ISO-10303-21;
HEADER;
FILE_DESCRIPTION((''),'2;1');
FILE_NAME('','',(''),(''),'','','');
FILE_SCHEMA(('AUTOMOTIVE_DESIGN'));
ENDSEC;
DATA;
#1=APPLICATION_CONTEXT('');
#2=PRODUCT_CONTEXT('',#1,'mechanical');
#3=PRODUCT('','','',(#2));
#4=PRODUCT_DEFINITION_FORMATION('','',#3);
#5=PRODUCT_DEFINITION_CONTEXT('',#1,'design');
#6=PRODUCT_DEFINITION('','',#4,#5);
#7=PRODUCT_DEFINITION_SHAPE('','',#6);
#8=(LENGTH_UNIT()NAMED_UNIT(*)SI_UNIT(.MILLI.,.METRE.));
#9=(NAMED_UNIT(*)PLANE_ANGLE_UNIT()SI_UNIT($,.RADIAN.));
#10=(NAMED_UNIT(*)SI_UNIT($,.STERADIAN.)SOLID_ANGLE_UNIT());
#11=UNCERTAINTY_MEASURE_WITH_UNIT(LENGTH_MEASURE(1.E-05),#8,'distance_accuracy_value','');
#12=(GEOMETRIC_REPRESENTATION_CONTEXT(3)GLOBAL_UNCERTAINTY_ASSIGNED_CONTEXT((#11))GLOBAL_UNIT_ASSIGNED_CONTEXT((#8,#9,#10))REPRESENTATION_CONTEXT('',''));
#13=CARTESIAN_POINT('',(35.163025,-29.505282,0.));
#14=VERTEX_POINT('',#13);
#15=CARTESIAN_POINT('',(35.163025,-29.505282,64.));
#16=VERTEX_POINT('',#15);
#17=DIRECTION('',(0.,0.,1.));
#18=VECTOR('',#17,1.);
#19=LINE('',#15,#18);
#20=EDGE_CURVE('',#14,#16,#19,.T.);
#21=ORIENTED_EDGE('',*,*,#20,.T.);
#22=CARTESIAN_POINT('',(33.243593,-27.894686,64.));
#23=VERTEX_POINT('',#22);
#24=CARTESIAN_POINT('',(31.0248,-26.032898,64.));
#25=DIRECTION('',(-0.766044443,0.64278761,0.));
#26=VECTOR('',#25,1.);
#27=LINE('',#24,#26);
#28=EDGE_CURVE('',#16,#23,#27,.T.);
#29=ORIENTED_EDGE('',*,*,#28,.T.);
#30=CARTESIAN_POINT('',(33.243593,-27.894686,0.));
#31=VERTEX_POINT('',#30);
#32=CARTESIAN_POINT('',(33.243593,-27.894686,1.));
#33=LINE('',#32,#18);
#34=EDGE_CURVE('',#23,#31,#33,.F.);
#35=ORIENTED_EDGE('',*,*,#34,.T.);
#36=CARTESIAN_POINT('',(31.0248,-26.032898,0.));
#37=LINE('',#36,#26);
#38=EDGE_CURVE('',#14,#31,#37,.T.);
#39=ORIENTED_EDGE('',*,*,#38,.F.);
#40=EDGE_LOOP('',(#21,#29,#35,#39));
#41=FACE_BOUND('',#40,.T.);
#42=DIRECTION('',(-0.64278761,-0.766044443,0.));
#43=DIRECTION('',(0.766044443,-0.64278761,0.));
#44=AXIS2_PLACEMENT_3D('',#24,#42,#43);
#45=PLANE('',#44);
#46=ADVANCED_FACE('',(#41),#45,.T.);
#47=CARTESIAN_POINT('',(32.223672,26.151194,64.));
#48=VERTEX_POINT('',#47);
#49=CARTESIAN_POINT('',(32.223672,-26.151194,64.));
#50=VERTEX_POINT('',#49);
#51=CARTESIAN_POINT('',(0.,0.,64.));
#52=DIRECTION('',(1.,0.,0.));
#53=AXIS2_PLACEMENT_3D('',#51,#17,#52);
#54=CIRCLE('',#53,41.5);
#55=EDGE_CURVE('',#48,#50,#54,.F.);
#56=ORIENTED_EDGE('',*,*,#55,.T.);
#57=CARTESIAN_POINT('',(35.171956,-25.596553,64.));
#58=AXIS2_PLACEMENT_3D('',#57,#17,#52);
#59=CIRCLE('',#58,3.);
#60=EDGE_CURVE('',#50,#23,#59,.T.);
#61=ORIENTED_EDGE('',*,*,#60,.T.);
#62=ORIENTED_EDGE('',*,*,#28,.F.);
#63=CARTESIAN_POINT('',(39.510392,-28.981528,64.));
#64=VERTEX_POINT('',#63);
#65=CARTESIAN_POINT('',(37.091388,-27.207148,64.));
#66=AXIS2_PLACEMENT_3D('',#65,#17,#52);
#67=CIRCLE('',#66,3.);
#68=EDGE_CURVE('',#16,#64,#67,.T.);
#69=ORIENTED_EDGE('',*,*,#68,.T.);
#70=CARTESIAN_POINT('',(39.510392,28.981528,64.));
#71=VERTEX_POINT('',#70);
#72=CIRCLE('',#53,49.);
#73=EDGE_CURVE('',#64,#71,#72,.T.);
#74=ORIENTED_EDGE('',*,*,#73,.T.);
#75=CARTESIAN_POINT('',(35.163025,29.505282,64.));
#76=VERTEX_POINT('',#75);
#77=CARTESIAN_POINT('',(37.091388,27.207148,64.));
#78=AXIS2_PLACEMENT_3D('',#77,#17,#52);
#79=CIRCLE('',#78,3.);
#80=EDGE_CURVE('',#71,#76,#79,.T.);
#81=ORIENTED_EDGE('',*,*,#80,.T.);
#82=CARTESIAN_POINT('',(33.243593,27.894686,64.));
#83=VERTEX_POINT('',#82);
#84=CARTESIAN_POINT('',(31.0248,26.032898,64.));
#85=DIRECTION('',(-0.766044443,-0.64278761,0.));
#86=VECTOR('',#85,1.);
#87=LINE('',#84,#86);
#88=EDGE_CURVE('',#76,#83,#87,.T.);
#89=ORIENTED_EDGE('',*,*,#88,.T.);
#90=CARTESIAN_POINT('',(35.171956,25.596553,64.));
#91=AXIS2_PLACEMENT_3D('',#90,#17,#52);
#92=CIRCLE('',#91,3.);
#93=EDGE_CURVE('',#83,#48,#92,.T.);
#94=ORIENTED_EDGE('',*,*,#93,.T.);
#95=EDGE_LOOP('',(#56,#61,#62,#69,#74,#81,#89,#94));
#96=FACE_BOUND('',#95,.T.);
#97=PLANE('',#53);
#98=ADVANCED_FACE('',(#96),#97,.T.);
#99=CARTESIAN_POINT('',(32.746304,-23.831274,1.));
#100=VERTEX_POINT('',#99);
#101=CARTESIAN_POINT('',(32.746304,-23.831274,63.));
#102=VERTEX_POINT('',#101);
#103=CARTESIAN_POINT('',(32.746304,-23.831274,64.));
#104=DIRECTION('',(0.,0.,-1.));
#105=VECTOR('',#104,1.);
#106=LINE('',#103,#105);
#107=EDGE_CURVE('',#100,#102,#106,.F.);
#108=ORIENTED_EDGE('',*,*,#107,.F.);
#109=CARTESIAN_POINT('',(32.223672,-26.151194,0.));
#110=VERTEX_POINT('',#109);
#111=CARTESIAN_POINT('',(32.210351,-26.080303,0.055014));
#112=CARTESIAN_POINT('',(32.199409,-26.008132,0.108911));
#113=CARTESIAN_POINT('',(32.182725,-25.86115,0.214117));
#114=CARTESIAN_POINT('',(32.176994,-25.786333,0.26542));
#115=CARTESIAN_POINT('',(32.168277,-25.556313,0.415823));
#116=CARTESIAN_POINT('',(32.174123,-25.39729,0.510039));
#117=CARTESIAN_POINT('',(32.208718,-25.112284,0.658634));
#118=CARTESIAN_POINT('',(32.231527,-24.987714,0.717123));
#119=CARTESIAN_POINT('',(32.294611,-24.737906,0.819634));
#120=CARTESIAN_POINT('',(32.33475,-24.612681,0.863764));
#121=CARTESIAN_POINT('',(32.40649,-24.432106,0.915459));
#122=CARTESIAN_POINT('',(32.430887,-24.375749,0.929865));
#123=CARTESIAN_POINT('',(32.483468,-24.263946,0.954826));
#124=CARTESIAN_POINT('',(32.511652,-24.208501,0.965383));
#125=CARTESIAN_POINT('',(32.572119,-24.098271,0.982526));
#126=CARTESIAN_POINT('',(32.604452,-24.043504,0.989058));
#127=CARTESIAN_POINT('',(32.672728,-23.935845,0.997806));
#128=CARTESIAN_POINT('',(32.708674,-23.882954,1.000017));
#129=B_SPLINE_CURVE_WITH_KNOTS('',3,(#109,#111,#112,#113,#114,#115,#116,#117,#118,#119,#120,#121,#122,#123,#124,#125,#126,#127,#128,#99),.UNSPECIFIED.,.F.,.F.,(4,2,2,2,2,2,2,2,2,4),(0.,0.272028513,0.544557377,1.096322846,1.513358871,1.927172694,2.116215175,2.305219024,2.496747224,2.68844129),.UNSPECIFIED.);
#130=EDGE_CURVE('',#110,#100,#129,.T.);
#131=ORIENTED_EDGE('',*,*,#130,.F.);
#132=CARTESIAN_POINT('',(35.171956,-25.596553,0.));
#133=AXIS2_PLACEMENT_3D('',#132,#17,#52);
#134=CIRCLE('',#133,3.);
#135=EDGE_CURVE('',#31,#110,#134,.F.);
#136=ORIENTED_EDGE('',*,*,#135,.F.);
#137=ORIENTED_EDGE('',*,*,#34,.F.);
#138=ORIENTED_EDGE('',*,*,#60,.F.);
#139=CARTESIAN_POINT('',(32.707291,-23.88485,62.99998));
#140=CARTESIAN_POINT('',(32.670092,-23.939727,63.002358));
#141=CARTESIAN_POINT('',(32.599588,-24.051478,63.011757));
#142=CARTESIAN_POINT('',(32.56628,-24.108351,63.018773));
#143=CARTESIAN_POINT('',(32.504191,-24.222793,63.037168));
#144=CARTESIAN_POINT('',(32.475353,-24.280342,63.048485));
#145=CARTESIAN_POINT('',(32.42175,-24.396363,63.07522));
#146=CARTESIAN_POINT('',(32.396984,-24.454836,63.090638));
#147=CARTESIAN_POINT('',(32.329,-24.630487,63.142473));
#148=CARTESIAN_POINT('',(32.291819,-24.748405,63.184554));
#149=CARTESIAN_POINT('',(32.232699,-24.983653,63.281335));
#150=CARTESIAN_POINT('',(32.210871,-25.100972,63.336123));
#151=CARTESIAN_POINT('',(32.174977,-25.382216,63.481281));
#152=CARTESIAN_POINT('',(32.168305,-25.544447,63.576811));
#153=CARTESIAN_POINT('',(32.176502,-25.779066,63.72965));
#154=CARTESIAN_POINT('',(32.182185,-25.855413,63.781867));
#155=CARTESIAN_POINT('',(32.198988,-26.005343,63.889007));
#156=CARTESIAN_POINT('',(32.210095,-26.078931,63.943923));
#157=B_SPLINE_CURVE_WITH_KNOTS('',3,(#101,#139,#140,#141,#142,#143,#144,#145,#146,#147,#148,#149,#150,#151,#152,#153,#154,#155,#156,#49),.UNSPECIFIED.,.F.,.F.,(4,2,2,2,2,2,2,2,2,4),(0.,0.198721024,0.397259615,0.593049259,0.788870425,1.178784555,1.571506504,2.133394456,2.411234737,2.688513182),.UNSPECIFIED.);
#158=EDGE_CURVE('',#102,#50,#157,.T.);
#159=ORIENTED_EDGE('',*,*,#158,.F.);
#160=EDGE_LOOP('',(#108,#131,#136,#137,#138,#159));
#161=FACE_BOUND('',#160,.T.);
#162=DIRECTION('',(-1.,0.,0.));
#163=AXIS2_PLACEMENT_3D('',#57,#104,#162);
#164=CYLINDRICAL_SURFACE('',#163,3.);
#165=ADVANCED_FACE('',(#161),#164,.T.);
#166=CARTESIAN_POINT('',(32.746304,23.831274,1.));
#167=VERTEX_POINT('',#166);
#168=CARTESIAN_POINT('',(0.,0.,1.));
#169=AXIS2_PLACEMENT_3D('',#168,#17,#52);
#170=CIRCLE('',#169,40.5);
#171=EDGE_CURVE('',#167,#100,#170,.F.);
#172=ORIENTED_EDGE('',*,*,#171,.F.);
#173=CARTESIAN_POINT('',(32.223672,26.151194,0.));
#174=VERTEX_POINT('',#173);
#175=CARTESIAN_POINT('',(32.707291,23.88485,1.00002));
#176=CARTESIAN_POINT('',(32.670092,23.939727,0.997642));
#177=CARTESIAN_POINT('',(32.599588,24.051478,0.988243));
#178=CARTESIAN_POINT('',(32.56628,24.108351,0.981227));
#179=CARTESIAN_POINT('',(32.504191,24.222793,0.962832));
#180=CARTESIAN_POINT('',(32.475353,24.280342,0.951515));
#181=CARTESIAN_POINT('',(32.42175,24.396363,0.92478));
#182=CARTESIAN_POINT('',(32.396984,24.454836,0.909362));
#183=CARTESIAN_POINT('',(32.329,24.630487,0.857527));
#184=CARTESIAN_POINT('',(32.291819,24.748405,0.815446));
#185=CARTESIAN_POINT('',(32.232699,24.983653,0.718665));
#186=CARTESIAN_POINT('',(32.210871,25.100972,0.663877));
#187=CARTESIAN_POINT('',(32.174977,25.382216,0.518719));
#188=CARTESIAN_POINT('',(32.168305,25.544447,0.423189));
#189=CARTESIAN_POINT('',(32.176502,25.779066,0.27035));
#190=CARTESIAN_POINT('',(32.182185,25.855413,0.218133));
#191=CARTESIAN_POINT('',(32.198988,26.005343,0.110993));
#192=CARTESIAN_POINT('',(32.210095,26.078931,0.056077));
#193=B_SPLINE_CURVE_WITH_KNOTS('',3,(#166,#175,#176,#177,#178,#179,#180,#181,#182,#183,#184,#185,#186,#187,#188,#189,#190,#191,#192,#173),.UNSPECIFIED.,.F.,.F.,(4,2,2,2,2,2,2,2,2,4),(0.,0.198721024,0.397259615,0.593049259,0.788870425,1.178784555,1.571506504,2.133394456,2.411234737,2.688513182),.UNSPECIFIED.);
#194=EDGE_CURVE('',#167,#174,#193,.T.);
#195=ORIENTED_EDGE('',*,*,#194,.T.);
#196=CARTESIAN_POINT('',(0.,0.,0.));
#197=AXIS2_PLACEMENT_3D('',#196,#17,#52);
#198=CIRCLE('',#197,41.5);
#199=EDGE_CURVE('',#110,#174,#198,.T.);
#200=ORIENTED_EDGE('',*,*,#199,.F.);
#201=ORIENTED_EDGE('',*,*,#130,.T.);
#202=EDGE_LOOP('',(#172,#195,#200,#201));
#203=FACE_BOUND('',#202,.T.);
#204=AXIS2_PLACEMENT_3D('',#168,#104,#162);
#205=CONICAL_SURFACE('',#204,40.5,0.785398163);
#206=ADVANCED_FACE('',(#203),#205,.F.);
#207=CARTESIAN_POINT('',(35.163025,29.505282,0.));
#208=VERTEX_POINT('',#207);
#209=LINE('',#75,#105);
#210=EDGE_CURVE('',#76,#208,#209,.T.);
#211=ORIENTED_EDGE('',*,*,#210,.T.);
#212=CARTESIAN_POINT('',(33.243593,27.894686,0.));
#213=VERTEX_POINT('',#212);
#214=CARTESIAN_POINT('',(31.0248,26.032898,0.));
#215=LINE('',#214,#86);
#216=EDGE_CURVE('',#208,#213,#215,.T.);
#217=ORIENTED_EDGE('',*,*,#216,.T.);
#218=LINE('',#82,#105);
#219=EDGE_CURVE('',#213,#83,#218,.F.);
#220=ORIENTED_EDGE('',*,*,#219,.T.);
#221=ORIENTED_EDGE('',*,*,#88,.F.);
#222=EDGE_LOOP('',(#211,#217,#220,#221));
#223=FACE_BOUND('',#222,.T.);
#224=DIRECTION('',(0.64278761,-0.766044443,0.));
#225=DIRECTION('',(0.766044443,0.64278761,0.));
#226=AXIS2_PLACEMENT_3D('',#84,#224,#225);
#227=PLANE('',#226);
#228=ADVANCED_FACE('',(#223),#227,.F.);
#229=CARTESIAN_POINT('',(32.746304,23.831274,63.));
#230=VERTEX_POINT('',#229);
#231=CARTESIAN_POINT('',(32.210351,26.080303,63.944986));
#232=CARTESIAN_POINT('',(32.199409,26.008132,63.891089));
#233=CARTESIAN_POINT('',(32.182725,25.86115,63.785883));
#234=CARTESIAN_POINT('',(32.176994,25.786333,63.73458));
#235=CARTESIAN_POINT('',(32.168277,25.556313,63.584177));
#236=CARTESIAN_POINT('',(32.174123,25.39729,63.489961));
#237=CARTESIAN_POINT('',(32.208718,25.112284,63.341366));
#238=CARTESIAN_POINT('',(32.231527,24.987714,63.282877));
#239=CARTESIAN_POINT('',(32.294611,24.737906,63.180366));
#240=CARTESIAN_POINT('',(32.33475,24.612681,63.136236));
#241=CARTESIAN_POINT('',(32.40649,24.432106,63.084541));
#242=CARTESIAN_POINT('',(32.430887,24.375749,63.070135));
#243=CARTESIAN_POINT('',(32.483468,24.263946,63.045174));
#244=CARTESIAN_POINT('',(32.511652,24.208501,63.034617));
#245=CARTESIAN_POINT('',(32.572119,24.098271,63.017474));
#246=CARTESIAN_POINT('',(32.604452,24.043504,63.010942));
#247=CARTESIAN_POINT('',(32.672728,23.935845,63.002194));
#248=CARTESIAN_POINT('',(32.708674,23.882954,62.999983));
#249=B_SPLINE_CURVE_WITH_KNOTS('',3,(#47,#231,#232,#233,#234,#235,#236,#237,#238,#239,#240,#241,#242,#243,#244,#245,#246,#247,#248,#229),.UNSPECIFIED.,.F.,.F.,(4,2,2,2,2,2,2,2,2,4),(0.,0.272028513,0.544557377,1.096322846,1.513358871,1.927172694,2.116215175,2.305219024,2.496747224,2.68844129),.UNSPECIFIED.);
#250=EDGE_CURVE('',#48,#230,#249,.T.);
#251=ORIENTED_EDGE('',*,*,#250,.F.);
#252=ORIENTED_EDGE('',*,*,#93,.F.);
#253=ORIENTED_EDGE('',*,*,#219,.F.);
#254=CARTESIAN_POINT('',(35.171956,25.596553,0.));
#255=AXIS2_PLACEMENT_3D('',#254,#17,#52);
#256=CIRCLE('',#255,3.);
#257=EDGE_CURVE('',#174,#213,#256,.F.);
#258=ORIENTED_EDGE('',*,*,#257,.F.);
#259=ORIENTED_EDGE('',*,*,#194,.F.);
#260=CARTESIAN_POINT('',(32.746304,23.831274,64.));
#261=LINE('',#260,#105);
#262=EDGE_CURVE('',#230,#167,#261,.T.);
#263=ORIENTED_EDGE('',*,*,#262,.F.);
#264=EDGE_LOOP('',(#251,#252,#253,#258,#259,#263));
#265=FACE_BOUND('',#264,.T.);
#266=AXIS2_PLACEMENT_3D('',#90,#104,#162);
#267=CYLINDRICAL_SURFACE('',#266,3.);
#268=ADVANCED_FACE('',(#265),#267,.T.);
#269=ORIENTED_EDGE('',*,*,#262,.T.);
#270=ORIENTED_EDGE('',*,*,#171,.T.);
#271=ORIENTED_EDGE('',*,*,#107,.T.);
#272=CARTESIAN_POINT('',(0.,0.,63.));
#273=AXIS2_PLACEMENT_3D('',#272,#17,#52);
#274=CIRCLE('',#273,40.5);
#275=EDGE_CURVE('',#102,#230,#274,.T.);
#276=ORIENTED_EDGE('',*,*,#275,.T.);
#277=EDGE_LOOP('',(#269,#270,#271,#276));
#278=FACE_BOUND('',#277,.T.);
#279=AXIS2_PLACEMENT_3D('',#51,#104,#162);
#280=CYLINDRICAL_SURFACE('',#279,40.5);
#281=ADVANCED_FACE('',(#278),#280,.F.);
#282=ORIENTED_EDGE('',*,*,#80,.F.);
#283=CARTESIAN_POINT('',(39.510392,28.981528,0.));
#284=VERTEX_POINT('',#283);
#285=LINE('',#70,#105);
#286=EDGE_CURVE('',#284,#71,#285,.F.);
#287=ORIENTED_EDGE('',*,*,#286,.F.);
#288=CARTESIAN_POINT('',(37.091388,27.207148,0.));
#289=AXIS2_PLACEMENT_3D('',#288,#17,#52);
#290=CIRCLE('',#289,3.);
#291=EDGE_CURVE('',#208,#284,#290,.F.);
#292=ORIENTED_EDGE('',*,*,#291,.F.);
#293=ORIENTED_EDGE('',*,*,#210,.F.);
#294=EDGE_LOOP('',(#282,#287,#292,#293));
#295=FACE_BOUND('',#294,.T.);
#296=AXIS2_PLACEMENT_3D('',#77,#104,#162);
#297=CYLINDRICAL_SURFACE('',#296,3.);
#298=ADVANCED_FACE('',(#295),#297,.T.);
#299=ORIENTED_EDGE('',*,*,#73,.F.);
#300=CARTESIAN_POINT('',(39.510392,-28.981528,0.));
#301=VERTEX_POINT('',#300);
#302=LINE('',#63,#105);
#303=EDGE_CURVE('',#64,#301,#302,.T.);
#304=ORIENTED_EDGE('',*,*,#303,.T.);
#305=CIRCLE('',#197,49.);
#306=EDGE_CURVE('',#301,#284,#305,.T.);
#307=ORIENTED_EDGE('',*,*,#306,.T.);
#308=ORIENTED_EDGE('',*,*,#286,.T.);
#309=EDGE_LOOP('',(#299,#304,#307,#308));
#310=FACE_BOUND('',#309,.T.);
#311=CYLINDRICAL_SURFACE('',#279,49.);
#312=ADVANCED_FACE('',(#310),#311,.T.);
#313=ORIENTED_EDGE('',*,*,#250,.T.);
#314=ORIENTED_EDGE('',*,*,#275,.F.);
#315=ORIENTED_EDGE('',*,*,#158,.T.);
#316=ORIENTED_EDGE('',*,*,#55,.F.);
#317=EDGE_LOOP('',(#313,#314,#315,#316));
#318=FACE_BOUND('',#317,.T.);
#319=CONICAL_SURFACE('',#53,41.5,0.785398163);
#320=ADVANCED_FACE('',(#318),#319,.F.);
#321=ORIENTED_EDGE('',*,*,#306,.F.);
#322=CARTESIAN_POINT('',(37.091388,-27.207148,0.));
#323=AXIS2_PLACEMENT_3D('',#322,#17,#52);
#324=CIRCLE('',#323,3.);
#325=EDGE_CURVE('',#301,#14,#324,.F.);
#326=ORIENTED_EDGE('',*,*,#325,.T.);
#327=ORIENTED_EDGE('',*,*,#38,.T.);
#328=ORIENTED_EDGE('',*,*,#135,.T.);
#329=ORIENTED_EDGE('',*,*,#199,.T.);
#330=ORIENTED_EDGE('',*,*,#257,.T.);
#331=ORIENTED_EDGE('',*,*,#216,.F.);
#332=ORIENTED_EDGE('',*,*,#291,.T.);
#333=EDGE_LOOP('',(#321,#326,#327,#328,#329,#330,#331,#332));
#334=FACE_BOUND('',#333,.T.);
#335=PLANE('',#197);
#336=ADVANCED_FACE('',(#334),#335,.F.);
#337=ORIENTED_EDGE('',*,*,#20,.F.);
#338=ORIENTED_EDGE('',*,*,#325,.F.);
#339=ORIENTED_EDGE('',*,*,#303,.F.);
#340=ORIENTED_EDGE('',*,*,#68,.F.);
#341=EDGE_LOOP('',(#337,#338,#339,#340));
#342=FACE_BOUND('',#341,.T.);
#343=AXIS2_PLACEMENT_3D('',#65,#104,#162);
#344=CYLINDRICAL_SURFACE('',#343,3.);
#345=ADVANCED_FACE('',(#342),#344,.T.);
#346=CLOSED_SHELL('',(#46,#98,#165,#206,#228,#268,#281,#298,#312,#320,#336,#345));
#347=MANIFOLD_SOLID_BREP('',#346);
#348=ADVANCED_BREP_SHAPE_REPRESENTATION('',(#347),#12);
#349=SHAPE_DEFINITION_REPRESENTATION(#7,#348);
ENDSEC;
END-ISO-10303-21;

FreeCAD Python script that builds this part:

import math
import FreeCAD as App
import Part
import Sketcher

V = App.Vector
Q = App.Units.Quantity


def edges_at(feature, points):
    """Names of the edges that pass closest to the given points."""
    edges = feature.Shape.Edges
    near = lambda p: min(range(len(edges)), key=lambda i: edges[i].distToShape(Part.Vertex(*p))[0])
    return sorted({f"Edge{near(p) + 1}" for p in points})

doc = App.newDocument("Part")
body = doc.addObject("PartDesign::Body", "Body")

# Sketch on XY plane
sketch1 = doc.addObject("Sketcher::SketchObject", "Sketch")
body.addObject(sketch1)
sketch1.AttachmentSupport = (doc.XY_Plane, [""])
sketch1.MapMode = "FlatFace"
sketch1.addGeometry([
    Part.LineSegment(V(40, 0, 0), V(49, 0, 0)),
    Part.ArcOfCircle(Part.Circle(V(0, 0, 0), V(0, 0, 1), 49), math.radians(0), math.radians(40)),
    Part.LineSegment(V(38, 31, 0), V(31, 26, 0)),
    Part.ArcOfCircle(Part.Circle(V(0, 0, 0), V(0, 0, 1), 40), math.radians(0), math.radians(40)),
], False)
sketch1.addConstraint([
    Sketcher.Constraint("Coincident", 0, 2, 1, 1),
    Sketcher.Constraint("Coincident", 1, 2, 2, 1),
    Sketcher.Constraint("Coincident", 2, 2, 3, 2),
    Sketcher.Constraint("Coincident", 3, 1, 0, 1),
    Sketcher.Constraint("Horizontal", 0),
    Sketcher.Constraint("Coincident", 1, 3, -1, 1),
    Sketcher.Constraint("Coincident", 3, 3, -1, 1),
    Sketcher.Constraint("PointOnObject", 0, 2, -1),
    Sketcher.Constraint("Radius", 1, Q("49 mm")),
    Sketcher.Constraint("Radius", 3, Q("40.5 mm")),
    Sketcher.Constraint("Angle", 2, Q("-140 deg")),
    Sketcher.Constraint("DistanceX", -1, 1, 2, 2, Q("31.0248 mm")),
])
pad1 = doc.addObject("PartDesign::Pad", "Pad")
body.addObject(pad1)
pad1.Profile = sketch1
pad1.Length = 64
doc.recompute()

mirrored = doc.addObject("PartDesign::Mirrored", "Mirrored")
body.addObject(mirrored)
mirrored.Originals = [pad1]
mirrored.MirrorPlane = (doc.XZ_Plane, [""])
body.Tip = mirrored
doc.recompute()

chamfer = doc.addObject("PartDesign::Chamfer", "Chamfer")
body.addObject(chamfer)
chamfer.Base = (mirrored, edges_at(mirrored, [(40.5, 0, 64), (40.5, 0, 0)]))
chamfer.Size = 1
doc.recompute()

fillet = doc.addObject("PartDesign::Fillet", "Fillet")
body.addObject(fillet)
fillet.Base = (chamfer, edges_at(chamfer, [
    (31.025, 26.033, 32),
    (37.536, 31.497, 32),
    (37.536, -31.497, 32),
    (31.025, -26.033, 32),
]))
fillet.Radius = 3

doc.recompute()
